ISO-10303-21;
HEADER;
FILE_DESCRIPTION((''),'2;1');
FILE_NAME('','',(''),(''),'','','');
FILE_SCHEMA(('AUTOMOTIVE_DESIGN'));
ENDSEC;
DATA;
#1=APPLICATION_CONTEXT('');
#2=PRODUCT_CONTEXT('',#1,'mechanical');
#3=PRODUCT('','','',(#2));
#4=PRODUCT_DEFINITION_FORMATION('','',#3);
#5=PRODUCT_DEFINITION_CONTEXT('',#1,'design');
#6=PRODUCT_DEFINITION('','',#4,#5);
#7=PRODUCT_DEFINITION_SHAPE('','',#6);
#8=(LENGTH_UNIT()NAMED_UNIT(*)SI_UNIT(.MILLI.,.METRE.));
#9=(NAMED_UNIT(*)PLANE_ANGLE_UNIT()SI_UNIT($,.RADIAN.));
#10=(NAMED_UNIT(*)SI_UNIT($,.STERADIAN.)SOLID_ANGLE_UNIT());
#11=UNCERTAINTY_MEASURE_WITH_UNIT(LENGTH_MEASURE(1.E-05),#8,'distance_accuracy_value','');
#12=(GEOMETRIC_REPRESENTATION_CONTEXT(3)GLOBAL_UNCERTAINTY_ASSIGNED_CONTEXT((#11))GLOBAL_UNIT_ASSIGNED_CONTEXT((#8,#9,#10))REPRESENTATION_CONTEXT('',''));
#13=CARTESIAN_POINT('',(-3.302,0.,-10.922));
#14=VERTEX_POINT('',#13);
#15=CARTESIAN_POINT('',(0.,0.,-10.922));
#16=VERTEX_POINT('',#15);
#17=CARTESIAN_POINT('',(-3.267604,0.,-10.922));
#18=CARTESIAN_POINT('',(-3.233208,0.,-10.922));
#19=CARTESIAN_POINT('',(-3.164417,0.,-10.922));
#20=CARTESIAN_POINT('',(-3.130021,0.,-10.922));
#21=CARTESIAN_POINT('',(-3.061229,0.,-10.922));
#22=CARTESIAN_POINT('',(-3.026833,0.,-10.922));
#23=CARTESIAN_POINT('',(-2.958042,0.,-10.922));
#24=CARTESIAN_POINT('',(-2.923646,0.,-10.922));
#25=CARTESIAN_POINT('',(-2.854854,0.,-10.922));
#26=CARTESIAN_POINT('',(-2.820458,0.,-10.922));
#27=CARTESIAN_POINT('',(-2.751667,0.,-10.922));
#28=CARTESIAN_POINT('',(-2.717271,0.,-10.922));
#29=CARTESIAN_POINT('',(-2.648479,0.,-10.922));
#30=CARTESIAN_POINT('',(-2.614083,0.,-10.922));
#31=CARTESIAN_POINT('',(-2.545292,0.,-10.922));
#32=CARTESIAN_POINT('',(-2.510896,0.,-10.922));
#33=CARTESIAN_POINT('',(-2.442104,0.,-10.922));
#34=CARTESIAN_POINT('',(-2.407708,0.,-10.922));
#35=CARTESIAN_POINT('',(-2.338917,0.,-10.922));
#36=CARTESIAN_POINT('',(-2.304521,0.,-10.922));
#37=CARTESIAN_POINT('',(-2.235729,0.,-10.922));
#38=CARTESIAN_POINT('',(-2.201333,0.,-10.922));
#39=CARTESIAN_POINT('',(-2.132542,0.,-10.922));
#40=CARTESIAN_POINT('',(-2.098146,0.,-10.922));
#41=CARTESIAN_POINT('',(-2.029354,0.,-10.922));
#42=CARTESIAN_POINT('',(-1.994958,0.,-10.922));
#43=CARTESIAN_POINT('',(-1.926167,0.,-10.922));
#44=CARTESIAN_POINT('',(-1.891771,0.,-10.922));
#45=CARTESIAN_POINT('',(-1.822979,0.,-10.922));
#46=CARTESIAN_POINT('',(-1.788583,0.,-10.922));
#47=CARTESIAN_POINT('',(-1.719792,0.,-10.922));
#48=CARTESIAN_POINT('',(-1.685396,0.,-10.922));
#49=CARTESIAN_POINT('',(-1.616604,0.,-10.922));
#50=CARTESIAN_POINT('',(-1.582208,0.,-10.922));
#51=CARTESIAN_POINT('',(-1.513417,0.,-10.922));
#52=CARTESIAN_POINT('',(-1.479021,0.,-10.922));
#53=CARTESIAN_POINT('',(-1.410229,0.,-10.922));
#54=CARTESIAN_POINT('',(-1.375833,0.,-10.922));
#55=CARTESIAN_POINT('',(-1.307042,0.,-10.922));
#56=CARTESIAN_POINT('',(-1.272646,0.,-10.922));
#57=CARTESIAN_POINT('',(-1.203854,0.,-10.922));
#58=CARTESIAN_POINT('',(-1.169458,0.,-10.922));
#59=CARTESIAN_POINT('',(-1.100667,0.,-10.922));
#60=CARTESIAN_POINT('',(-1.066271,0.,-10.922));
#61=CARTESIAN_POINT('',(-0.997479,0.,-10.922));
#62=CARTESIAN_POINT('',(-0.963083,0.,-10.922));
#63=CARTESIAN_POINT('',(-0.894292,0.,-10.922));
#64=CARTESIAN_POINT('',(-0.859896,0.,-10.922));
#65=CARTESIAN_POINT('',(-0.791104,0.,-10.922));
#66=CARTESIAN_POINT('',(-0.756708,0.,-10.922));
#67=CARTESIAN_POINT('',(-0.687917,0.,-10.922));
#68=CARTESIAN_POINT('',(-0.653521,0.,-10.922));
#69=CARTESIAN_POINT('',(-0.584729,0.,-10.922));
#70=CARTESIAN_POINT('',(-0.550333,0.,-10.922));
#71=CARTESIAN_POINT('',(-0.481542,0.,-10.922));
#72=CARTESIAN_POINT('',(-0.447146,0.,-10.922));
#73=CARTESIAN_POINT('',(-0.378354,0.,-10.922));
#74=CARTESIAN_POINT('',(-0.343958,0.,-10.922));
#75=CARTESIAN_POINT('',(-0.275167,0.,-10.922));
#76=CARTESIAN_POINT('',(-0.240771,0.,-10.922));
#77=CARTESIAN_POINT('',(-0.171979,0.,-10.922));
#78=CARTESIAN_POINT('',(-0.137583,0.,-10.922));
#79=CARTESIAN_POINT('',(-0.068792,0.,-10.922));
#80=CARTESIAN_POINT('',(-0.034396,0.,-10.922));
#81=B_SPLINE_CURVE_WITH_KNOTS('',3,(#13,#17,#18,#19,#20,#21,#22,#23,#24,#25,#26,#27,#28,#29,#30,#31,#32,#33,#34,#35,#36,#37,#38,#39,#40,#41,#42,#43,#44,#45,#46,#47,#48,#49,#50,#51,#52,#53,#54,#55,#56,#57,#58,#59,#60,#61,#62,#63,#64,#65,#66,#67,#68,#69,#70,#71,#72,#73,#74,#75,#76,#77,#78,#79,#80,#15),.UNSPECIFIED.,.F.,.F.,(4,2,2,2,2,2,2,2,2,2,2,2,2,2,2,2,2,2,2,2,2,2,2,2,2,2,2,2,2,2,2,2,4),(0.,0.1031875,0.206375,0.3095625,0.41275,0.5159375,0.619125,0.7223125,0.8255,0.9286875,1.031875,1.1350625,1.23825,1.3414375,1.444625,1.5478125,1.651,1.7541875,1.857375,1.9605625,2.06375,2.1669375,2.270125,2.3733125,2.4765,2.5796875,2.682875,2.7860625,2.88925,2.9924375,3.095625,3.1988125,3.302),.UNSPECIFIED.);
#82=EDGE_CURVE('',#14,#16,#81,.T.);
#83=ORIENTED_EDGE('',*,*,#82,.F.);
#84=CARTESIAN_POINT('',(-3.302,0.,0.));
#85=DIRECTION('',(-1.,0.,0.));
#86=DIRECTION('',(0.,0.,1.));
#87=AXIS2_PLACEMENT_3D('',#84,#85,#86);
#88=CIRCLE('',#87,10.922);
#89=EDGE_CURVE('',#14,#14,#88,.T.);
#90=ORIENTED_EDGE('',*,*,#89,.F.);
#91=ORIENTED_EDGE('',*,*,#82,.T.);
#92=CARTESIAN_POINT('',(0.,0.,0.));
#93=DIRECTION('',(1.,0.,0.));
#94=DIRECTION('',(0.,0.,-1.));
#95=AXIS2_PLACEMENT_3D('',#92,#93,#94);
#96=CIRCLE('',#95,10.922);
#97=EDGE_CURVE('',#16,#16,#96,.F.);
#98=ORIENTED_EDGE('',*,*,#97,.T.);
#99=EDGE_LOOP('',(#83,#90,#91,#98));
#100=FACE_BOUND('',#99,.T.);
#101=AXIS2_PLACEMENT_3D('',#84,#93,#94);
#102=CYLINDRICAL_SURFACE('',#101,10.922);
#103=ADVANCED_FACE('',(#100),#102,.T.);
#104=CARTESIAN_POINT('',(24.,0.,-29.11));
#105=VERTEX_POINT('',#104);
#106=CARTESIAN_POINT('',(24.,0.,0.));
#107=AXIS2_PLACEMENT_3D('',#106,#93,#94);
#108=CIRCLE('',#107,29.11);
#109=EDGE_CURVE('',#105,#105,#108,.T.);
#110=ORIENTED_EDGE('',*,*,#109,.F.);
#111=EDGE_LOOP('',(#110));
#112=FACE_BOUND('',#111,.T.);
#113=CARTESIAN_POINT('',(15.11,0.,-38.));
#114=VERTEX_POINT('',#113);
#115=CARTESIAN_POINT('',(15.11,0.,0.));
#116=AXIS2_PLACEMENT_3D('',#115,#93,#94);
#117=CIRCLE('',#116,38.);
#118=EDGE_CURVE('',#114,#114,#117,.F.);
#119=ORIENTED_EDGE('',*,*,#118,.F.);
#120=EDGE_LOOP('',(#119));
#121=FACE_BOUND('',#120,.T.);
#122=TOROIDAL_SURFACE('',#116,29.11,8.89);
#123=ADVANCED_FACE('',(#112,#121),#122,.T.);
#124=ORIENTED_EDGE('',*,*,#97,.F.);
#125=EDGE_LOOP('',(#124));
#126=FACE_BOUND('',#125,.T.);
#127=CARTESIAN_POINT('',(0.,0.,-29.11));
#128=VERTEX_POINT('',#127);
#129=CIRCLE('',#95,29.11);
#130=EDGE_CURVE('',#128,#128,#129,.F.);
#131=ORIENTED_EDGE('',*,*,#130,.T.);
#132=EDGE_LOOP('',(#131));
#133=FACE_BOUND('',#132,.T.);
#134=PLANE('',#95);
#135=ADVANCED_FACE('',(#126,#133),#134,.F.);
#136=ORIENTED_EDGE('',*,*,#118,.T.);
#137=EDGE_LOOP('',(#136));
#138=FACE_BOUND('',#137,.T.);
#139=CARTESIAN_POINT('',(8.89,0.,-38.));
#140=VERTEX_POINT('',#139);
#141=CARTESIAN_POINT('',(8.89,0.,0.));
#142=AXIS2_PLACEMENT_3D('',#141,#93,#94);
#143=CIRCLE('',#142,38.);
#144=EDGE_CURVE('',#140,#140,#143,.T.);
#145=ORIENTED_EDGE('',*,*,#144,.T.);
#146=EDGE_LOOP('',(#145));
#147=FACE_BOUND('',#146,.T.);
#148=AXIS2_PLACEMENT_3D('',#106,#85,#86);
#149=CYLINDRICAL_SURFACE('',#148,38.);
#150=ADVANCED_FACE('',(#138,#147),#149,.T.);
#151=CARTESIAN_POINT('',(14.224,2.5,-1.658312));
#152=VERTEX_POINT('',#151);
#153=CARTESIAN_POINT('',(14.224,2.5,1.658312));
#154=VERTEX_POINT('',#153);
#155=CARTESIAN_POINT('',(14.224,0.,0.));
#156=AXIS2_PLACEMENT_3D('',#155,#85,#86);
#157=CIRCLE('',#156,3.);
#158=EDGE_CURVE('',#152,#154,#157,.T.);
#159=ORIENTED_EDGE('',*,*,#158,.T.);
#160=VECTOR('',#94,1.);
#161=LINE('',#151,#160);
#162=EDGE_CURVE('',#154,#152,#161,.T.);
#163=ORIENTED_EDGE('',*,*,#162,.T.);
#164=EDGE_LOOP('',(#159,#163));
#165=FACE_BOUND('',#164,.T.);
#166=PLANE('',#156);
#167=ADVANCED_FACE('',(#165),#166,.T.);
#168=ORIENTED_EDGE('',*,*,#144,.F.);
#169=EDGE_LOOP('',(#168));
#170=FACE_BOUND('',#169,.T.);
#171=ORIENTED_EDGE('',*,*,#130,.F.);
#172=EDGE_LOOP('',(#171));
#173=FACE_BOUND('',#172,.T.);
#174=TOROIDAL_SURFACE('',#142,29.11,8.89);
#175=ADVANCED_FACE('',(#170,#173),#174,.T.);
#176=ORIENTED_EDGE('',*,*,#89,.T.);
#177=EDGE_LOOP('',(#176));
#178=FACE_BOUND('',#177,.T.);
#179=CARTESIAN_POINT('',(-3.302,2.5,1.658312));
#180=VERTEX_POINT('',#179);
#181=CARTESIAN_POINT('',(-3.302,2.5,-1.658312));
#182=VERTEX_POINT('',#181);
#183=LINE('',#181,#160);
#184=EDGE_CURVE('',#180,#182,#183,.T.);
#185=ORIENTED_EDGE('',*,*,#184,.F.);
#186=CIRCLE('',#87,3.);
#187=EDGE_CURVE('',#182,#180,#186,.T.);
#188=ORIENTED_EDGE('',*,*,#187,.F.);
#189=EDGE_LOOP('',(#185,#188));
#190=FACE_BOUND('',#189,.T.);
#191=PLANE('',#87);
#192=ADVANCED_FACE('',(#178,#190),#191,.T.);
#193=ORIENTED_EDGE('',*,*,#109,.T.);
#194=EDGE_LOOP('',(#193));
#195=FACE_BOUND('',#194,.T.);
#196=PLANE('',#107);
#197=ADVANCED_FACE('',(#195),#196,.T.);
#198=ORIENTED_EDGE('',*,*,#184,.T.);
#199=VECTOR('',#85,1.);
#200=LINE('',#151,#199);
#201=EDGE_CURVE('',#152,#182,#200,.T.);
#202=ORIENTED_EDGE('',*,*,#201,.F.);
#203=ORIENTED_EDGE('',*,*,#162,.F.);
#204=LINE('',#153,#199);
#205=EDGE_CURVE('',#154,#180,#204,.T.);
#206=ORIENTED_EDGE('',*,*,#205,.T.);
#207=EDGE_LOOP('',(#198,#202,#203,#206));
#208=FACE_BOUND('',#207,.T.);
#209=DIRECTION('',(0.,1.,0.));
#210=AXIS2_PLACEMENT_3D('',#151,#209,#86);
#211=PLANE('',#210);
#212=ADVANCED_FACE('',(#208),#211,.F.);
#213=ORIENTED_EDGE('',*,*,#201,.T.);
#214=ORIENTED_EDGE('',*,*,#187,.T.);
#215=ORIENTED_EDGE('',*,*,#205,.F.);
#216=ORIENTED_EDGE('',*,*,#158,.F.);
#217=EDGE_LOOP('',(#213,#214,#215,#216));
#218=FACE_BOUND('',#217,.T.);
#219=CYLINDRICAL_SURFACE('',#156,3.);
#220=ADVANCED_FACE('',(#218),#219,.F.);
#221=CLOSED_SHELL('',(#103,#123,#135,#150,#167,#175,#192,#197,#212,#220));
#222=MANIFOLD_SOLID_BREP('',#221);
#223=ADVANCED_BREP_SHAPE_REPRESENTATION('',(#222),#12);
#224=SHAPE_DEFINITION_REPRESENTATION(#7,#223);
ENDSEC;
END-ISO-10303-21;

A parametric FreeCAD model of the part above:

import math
import FreeCAD as App
import Part
import Sketcher

V = App.Vector
Q = App.Units.Quantity


def edges_at(feature, points):
    """Names of the edges that pass closest to the given points."""
    edges = feature.Shape.Edges
    near = lambda p: min(range(len(edges)), key=lambda i: edges[i].distToShape(Part.Vertex(*p))[0])
    return sorted({f"Edge{near(p) + 1}" for p in points})

doc = App.newDocument("Part")
params = doc.addObject("Spreadsheet::Sheet", "Params")
for row, (alias, value) in enumerate([
    ("pad1_length", "24 mm"),
    ("fillet_radius", "0.35 in"),
    ("sketch2_diameter", "0.86 in"),
    ("pad2_length", "0.13 in"),
    ("pocket1_length", "0.69 in"),
], start=1):
    params.set(f"A{row}", alias)
    params.set(f"B{row}", "=" + value)
    params.setAlias(f"B{row}", alias)

body = doc.addObject("PartDesign::Body", "Body")

sketch1 = body.newObject("Sketcher::SketchObject", "Sketch")
sketch1.AttachmentSupport = (doc.getObject("YZ_Plane"), [""])
sketch1.MapMode = "FlatFace"
sketch1.addGeometry(Part.Circle(V(0, 0, 0), V(0, 0, 1), 38), False)
sketch1.addConstraint(Sketcher.Constraint("Coincident", 0, 3, -1, 1))
sketch1.addConstraint(Sketcher.Constraint("Diameter", 0, Q("76 mm")))
pad1 = body.newObject("PartDesign::Pad", "Pad")
pad1.Profile = sketch1
pad1.setExpression("Length", "Params.pad1_length")
doc.recompute()

fillet = body.newObject("PartDesign::Fillet", "Fillet")
fillet.Base = (pad1, edges_at(pad1, [(0, 0, 38), (24, 0, 38)]))
fillet.setExpression("Radius", "Params.fillet_radius")

sketch2 = body.newObject("Sketcher::SketchObject", "Sketch001")
sketch2.AttachmentSupport = (doc.getObject("YZ_Plane"), [""])
sketch2.MapMode = "FlatFace"
sketch2.addGeometry(Part.Circle(V(0, 0, 0), V(0, 0, 1), 11), False)
sketch2.addConstraint(Sketcher.Constraint("Coincident", 0, 3, -1, 1))
sketch2.addConstraint(Sketcher.Constraint("Diameter", 0, Q("0.86 in")))
sketch2.setExpression("Constraints[1]", "Params.sketch2_diameter")
pad2 = body.newObject("PartDesign::Pad", "Pad001")
pad2.Profile = sketch2
pad2.setExpression("Length", "Params.pad2_length")
pad2.Reversed = True

sketch3 = body.newObject("Sketcher::SketchObject", "Sketch002")
sketch3.AttachmentSupport = (doc.getObject("YZ_Plane"), [""])
sketch3.MapMode = "FlatFace"
sketch3.AttachmentOffset = App.Placement(V(0, 0, -0.13 * 25.4), App.Rotation())
sketch3.addGeometry(Part.LineSegment(V(2.5, 1.7, 0), V(2.5, -1.7, 0)), False)
sketch3.addGeometry(Part.ArcOfCircle(Part.Circle(V(0, 0, 0), V(0, 0, 1), 3), math.radians(34), math.radians(326)), False)
sketch3.addConstraint(Sketcher.Constraint("Coincident", 0, 1, 1, 1))
sketch3.addConstraint(Sketcher.Constraint("Coincident", 1, 2, 0, 2))
sketch3.addConstraint(Sketcher.Constraint("Vertical", 0))
sketch3.addConstraint(Sketcher.Constraint("Coincident", 1, 3, -1, 1))
sketch3.addConstraint(Sketcher.Constraint("Radius", 1, Q("3 mm")))
sketch3.addConstraint(Sketcher.Constraint("DistanceX", -1, 1, 0, 1, Q("2.5 mm")))
pocket1 = body.newObject("PartDesign::Pocket", "Pocket")
pocket1.Profile = sketch3
pocket1.setExpression("Length", "Params.pocket1_length")
pocket1.Reversed = True

doc.recompute()
